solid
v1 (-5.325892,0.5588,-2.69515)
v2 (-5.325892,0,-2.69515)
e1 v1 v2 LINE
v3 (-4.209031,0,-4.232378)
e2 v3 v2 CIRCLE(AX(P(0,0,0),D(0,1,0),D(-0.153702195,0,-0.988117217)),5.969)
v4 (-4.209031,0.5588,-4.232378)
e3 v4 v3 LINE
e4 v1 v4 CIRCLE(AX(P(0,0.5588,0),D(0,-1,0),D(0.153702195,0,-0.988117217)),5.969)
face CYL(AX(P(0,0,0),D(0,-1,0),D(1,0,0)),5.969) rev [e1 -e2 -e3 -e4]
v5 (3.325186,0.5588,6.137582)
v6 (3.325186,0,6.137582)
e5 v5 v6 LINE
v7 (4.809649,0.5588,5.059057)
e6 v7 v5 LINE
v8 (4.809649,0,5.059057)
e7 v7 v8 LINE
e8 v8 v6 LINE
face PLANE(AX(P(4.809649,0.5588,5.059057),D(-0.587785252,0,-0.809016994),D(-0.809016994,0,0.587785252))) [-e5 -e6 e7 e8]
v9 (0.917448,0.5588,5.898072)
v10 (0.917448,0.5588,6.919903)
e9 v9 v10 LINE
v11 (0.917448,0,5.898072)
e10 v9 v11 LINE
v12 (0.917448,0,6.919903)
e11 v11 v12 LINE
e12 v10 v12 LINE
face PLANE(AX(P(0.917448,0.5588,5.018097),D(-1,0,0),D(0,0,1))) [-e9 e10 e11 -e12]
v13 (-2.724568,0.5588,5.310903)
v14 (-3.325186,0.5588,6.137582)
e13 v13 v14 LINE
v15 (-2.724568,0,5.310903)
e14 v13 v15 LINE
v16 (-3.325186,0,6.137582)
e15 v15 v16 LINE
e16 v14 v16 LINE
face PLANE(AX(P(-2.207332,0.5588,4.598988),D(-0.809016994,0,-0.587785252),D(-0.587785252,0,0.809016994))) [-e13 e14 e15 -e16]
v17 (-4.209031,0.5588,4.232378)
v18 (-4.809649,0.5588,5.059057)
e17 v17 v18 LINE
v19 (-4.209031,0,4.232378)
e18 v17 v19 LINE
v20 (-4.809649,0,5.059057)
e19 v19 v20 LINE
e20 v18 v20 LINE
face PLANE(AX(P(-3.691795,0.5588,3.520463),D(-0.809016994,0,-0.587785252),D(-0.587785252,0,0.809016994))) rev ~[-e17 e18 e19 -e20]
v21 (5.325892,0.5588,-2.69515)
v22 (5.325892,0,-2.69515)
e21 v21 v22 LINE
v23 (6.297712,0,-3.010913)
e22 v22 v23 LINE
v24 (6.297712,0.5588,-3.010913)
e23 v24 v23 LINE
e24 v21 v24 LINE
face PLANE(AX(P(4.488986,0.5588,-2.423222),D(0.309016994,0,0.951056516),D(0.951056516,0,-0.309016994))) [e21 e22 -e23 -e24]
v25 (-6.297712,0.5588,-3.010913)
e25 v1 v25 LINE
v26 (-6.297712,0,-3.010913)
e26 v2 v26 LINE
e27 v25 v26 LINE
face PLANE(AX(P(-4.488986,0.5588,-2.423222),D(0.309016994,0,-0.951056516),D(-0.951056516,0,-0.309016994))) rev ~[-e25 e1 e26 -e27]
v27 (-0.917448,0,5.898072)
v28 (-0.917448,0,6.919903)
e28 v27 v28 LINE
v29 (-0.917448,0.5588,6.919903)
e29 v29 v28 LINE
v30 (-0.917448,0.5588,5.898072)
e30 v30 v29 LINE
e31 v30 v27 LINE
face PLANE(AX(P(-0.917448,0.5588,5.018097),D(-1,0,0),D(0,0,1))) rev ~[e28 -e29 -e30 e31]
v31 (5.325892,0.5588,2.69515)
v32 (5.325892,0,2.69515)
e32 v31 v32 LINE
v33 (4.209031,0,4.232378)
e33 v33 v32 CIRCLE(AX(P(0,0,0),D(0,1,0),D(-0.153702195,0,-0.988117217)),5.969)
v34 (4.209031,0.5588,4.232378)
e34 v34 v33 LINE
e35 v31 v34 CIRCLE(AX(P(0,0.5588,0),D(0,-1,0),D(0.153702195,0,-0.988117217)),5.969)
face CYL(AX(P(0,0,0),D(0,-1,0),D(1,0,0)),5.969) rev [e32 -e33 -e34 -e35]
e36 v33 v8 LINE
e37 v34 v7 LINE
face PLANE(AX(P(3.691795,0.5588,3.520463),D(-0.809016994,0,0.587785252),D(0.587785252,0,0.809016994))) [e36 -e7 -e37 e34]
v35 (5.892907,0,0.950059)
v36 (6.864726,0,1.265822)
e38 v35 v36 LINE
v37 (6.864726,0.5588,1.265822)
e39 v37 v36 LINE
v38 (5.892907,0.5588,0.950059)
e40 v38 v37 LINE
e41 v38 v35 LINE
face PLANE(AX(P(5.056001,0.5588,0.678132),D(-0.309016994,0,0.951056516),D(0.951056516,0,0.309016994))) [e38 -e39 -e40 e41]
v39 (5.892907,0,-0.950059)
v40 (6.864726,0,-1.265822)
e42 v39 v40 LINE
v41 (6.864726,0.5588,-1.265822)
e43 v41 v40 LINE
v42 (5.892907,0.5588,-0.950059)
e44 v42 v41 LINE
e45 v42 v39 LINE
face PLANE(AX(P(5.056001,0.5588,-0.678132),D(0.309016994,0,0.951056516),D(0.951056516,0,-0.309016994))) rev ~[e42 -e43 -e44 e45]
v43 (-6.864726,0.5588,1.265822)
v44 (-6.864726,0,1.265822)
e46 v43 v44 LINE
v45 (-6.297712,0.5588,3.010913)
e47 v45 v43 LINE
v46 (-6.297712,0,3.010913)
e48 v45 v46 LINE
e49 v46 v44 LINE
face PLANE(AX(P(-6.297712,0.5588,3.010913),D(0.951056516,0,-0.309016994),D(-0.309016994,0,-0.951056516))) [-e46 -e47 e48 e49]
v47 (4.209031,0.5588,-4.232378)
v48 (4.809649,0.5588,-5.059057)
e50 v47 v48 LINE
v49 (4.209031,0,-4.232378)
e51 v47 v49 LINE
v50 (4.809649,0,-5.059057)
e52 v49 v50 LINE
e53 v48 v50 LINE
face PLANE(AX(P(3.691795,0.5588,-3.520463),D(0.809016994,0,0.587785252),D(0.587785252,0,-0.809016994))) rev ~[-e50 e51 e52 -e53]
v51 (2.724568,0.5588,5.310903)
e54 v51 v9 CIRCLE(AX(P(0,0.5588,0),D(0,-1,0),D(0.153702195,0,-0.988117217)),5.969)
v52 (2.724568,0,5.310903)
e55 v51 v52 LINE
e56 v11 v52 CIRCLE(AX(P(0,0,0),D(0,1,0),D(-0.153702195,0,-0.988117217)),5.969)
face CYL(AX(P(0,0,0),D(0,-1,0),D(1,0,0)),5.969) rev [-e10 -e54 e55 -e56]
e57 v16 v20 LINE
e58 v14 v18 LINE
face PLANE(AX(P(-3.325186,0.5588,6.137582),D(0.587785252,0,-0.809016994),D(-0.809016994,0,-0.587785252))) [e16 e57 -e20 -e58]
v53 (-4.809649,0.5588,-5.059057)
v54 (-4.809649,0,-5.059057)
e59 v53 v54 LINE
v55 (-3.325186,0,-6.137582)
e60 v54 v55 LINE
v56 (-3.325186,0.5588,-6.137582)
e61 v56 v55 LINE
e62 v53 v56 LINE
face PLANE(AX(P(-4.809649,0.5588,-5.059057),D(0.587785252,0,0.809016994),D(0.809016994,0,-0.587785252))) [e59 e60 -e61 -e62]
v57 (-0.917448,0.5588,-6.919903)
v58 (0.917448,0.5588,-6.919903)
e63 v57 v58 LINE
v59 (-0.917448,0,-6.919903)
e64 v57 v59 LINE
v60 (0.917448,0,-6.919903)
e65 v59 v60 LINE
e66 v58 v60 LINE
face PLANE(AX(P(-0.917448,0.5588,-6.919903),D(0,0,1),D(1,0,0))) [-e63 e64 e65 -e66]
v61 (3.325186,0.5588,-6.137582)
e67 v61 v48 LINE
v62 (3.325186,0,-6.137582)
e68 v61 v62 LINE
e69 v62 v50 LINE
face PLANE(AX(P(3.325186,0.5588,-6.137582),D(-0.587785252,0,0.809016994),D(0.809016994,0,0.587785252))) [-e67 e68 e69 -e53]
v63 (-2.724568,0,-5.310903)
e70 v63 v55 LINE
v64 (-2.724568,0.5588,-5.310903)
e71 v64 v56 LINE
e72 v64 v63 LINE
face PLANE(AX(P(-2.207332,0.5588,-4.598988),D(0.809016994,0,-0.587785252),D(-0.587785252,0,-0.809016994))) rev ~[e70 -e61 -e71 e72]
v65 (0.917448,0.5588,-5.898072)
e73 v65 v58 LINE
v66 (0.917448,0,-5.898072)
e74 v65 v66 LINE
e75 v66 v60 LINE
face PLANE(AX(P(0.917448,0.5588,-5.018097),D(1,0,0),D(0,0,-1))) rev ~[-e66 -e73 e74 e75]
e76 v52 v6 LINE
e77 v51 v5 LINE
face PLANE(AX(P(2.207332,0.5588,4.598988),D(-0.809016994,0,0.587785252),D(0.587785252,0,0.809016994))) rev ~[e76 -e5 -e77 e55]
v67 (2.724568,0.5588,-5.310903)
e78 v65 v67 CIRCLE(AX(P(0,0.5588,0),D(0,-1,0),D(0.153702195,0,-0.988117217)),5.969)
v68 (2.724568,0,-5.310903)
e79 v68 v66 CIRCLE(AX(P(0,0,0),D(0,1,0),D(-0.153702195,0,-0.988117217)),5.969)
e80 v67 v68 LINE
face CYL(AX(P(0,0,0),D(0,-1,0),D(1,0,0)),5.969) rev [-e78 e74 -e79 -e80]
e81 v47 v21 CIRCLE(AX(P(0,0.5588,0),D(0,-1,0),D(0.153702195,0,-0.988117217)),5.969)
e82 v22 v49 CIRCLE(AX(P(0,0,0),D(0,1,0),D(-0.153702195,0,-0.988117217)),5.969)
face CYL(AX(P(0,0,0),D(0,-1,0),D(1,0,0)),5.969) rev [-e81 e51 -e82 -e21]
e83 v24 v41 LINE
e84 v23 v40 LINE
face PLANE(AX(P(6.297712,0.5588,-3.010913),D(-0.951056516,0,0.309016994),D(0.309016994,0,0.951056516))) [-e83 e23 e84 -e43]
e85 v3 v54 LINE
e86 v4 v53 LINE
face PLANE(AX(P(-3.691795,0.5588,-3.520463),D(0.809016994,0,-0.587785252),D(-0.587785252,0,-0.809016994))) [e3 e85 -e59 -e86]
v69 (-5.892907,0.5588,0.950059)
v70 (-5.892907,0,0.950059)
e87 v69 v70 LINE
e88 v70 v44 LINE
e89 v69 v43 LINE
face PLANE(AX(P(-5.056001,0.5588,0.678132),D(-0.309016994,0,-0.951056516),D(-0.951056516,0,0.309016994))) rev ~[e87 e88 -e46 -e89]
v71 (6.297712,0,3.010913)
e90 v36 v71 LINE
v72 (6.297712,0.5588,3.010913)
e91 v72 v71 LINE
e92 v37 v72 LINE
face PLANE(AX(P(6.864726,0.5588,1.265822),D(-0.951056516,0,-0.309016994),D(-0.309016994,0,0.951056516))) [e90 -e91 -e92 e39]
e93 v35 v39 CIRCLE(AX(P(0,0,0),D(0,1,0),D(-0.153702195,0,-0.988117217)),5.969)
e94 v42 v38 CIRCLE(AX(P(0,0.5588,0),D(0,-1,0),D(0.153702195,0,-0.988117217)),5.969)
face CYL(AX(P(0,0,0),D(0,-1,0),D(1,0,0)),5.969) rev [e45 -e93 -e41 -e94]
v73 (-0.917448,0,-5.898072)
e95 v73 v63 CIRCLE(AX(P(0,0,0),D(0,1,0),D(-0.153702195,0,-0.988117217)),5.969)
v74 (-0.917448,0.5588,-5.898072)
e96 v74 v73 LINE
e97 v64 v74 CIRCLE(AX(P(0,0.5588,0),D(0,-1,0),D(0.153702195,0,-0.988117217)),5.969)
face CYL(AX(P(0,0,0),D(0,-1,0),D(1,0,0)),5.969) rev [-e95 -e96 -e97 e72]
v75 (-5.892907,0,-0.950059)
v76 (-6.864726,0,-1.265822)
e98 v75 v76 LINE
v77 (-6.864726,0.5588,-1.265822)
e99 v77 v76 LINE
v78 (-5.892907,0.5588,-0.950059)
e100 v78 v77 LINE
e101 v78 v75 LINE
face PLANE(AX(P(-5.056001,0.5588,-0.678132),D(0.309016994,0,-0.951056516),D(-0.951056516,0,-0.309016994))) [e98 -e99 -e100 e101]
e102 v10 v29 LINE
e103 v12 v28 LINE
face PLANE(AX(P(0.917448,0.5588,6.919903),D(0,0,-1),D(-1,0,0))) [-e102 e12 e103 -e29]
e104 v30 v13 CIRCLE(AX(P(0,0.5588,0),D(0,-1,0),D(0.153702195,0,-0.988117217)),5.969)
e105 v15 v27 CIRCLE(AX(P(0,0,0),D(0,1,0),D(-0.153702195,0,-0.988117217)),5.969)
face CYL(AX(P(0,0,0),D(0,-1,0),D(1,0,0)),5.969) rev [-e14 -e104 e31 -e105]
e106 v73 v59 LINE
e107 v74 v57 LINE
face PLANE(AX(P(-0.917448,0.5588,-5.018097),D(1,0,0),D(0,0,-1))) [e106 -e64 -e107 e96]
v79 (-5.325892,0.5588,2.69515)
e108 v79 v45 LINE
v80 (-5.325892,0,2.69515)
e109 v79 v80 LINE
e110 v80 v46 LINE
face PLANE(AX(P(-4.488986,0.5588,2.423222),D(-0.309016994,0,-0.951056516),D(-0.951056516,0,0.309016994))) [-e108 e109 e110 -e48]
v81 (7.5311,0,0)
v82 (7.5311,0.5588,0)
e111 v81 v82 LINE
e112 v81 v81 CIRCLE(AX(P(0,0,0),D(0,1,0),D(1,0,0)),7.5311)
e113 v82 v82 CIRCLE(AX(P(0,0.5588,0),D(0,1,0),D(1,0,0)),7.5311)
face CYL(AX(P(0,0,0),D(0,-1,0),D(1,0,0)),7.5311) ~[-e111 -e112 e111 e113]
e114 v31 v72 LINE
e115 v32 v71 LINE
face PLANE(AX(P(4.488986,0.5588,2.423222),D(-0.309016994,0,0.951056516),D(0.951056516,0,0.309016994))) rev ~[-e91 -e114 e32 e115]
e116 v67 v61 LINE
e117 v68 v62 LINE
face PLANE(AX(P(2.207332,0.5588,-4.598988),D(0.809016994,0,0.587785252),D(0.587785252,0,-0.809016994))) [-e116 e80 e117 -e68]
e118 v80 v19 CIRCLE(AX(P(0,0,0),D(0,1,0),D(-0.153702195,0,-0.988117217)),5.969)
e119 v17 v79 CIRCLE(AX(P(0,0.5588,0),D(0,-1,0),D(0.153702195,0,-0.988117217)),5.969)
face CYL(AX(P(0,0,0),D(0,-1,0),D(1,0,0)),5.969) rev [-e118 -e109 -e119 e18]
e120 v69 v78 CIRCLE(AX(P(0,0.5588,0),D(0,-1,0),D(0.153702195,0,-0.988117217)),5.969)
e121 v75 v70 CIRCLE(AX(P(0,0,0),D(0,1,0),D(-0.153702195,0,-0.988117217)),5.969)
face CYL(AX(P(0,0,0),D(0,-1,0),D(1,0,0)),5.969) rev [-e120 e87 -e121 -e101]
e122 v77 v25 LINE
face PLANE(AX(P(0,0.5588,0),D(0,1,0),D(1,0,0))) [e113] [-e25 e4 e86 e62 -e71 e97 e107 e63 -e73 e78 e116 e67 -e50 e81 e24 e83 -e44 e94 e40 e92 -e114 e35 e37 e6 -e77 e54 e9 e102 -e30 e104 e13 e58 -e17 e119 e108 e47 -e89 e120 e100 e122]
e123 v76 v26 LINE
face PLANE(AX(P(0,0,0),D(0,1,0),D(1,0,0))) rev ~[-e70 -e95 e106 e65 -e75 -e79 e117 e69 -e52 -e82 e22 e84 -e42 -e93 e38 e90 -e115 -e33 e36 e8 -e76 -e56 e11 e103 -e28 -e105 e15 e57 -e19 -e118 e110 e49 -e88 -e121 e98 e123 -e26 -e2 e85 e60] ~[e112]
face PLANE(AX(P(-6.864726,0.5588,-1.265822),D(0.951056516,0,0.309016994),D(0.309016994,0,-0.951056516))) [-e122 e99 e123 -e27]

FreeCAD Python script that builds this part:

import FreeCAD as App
import Part
import Sketcher
Q = App.Units.Quantity


def add_polygon(sketch, points):
    """Adds a closed chain of lines whose ends are joined by coincident constraints."""
    first, n = sketch.GeometryCount, len(points)
    for a, b in zip(points, points[1:] + points[:1]):
        sketch.addGeometry(Part.LineSegment(App.Vector(*a, 0), App.Vector(*b, 0)), False)
    for i in range(n):
        sketch.addConstraint(Sketcher.Constraint("Coincident", first + i, 2, first + (i + 1) % n, 1))

doc = App.newDocument("Part")
body = doc.addObject("PartDesign::Body", "Body")

# Sketch on XZ plane
sketch1 = body.newObject("Sketcher::SketchObject", "Sketch")
sketch1.AttachmentSupport = (doc.getObject("XZ_Plane"), [""])
sketch1.MapMode = "FlatFace"
sketch1.addGeometry([
    Part.Circle(App.Vector(0, 0, 0), App.Vector(0, 0, 1), 8),
    Part.Circle(App.Vector(0, 0, 0), App.Vector(0, 0, 1), 6),
], False)
sketch1.addConstraint([
    Sketcher.Constraint("Coincident", 0, 3, -1, 1),
    Sketcher.Constraint("Coincident", 1, 3, -1, 1),
    Sketcher.Constraint("Diameter", 1, Q("0.47 in")),
    Sketcher.Constraint("Diameter", 0, Q("0.593 in")),
])
pad1 = body.newObject("PartDesign::Pad", "Pad")
pad1.Profile = sketch1
pad1.Length = Q("0.022 in")
pad1.Reversed = True

# Sketch on XZ plane
sketch2 = body.newObject("Sketcher::SketchObject", "Sketch001")
sketch2.AttachmentSupport = (doc.getObject("XZ_Plane"), [""])
sketch2.MapMode = "FlatFace"
sketch2.AttachmentOffset = App.Placement(App.Vector(0, 0, -0.022 * 25.4), App.Rotation())
add_polygon(sketch2, [(-0.9, -6.9), (-0.9, -5), (0.9, -5), (0.9, -6.9)])  # lines 0-3
sketch2.addConstraint([
    Sketcher.Constraint("Vertical", 0),
    Sketcher.Constraint("Horizontal", 1),
    Sketcher.Constraint("Vertical", 2),
    Sketcher.Constraint("Horizontal", 3),
    Sketcher.Constraint("DistanceX", 1, 1, 1, 2, 1.834897),
    Sketcher.Constraint("DistanceY", 0, 1, 0, 2, 1.901807),
    Sketcher.Constraint("DistanceX", 0, 2, -1, 1, 0.917448),
    Sketcher.Constraint("DistanceY", 0, 2, -1, 1, 5.018097),
])
pocket1 = body.newObject("PartDesign::Pocket", "Pocket")
pocket1.Profile = sketch2
pocket1.Type = "ThroughAll"
pocket1.Reversed = True
doc.recompute()

polarpattern = body.newObject("PartDesign::PolarPattern", "PolarPattern")
polarpattern.Originals = [pocket1]
polarpattern.Axis = (doc.getObject("Y_Axis"), [""])
polarpattern.Angle = 360
polarpattern.Occurrences = 10
body.Tip = polarpattern

doc.recompute()
